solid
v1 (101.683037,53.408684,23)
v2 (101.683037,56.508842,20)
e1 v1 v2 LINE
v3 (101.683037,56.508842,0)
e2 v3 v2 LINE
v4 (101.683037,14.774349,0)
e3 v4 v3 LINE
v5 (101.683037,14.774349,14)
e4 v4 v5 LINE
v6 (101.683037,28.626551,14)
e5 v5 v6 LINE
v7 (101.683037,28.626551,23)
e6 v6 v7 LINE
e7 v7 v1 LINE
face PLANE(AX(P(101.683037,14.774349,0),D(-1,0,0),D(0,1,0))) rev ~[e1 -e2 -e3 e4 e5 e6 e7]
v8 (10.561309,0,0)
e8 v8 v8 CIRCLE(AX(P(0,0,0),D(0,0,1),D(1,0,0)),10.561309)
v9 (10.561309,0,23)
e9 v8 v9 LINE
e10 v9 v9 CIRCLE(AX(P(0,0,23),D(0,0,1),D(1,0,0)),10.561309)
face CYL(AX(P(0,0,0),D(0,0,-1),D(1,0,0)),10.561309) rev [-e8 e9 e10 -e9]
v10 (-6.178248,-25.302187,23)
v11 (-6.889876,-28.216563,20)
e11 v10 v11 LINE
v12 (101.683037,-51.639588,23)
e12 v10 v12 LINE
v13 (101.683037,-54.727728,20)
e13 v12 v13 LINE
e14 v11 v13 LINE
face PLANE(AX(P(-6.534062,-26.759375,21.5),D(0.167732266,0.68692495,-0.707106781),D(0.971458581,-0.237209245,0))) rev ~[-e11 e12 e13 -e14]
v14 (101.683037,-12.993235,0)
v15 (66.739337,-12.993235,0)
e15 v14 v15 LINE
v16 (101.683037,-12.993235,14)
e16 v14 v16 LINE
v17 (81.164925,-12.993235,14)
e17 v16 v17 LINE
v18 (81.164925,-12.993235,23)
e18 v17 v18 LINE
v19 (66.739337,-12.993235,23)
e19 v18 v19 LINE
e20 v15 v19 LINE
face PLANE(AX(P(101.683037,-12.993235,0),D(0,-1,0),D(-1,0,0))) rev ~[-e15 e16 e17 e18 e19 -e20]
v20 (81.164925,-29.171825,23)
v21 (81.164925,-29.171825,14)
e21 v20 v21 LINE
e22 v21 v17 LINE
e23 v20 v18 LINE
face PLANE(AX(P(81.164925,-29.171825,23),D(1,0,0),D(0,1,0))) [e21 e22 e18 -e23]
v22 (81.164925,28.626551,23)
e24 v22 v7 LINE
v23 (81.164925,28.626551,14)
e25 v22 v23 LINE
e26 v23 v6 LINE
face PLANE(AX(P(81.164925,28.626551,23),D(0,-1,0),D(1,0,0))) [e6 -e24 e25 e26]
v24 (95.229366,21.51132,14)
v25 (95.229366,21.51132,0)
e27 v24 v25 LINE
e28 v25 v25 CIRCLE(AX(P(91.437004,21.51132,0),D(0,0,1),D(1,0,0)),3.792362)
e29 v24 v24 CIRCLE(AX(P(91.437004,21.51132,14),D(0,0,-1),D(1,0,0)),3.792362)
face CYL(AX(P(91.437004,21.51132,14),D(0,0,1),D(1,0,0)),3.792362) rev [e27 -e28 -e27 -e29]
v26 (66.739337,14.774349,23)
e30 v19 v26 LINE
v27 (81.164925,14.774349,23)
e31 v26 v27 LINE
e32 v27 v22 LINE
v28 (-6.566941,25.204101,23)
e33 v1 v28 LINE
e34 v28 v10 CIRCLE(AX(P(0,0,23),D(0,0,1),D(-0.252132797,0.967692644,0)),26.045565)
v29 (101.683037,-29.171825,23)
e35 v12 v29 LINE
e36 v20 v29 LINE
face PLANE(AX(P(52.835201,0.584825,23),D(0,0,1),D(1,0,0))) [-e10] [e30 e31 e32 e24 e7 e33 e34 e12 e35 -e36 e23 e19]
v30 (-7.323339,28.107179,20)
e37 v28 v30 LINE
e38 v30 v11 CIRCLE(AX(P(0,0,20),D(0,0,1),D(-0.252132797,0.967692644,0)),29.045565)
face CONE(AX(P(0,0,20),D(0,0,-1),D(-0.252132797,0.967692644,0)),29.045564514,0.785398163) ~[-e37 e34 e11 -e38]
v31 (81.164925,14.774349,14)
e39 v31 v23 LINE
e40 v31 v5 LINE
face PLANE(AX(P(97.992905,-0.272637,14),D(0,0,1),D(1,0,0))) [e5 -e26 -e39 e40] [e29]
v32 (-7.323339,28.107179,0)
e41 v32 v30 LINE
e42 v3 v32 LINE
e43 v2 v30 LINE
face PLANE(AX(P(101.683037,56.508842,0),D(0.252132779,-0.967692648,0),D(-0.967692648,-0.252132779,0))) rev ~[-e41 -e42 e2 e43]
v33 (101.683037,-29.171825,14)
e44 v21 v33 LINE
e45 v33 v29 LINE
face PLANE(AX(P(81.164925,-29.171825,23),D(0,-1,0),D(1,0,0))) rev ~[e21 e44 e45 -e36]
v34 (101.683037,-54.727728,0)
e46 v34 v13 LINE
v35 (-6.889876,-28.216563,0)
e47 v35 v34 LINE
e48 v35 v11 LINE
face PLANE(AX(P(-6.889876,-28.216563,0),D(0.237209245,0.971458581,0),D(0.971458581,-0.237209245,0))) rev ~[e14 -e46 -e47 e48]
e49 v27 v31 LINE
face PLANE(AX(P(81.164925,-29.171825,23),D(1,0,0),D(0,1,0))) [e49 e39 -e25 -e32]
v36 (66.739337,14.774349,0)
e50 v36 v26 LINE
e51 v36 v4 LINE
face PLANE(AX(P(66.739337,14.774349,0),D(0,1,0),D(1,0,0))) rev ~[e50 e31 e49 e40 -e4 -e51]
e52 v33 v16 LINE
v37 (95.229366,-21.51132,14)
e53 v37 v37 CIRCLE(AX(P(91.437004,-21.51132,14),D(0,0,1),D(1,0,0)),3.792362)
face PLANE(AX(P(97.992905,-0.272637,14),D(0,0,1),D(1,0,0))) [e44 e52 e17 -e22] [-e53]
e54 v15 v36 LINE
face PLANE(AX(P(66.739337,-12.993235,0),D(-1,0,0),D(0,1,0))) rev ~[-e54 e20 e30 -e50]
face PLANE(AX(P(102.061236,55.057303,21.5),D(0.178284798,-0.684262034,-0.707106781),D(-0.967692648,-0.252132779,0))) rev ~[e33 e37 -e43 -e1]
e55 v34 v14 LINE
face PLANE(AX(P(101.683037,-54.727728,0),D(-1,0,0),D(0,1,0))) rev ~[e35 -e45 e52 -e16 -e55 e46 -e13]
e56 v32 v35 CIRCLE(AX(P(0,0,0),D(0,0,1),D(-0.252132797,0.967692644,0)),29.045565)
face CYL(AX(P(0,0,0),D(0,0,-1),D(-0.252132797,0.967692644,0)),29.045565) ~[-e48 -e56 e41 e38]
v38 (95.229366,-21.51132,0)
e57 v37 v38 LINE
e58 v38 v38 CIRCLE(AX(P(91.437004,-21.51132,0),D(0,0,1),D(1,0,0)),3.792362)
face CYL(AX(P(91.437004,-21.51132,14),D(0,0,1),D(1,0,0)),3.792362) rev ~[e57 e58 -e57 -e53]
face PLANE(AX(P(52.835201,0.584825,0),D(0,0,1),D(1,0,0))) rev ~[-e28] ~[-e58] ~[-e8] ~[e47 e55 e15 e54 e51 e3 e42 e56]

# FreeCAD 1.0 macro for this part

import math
import FreeCAD as App
import Part
import Sketcher

V = App.Vector


def edges_at(feature, points):
    """Names of the edges that pass closest to the given points."""
    edges = feature.Shape.Edges
    near = lambda p: min(range(len(edges)), key=lambda i: edges[i].distToShape(Part.Vertex(*p))[0])
    return sorted({f"Edge{near(p) + 1}" for p in points})

doc = App.newDocument("Part")
body = doc.addObject("PartDesign::Body", "Body")

# Sketch on XY plane
sketch1 = body.newObject("Sketcher::SketchObject", "Sketch")
sketch1.AttachmentSupport = (doc.getObject("XY_Plane"), [""])
sketch1.MapMode = "FlatFace"
sketch1.addGeometry([
    Part.LineSegment(V(102, 57, 0), V(-7, 28, 0)),  # 0
    Part.ArcOfCircle(Part.Circle(V(0, 0, 0), V(0, 0, 1), 29), math.radians(105), math.radians(256)),  # 1
    Part.LineSegment(V(-7, -28, 0), V(102, -55, 0)),  # 2
    Part.LineSegment(V(102, -55, 0), V(102, -13, 0)),  # 3
    Part.LineSegment(V(102, -13, 0), V(67, -13, 0)),  # 4
    Part.LineSegment(V(67, -13, 0), V(67, 15, 0)),  # 5
    Part.LineSegment(V(67, 15, 0), V(102, 15, 0)),  # 6
    Part.LineSegment(V(102, 15, 0), V(102, 57, 0)),  # 7
    Part.Circle(V(0, 0, 0), V(0, 0, 1), 11),  # 8
], False)
sketch1.addConstraint([
    Sketcher.Constraint("Tangent", 0, 2, 1, 1),
    Sketcher.Constraint("Tangent", 1, 2, 2, 1),
    Sketcher.Constraint("Coincident", 2, 2, 3, 1),
    Sketcher.Constraint("Coincident", 3, 2, 4, 1),
    Sketcher.Constraint("Coincident", 4, 2, 5, 1),
    Sketcher.Constraint("Coincident", 5, 2, 6, 1),
    Sketcher.Constraint("Coincident", 6, 2, 7, 1),
    Sketcher.Constraint("Coincident", 7, 2, 0, 1),
    Sketcher.Constraint("Vertical", 3),
    Sketcher.Constraint("Horizontal", 4),
    Sketcher.Constraint("Vertical", 5),
    Sketcher.Constraint("Horizontal", 6),
    Sketcher.Constraint("Vertical", 7),
    Sketcher.Constraint("Coincident", 1, 3, -1, 1),
    Sketcher.Constraint("Coincident", 8, 3, -1, 1),
    Sketcher.Constraint("Vertical", 3, 2, 6, 2),
    Sketcher.Constraint("Equal", 3, 7),
    Sketcher.Constraint("Diameter", 8, 21.122618),
    Sketcher.Constraint("DistanceX", 4, 2, 4, 1, 34.9437),
    Sketcher.Constraint("Radius", 1, 29.045565),
    Sketcher.Constraint("Distance", 0, 112.645659),
    Sketcher.Constraint("Distance", 2, 111.762781),
    Sketcher.Constraint("DistanceY", 3, 1, 3, 2, 41.734493),
    Sketcher.Constraint("DistanceY", 5, 1, 5, 2, 27.767584),
])
pad1 = body.newObject("PartDesign::Pad", "Pad")
pad1.Profile = sketch1
pad1.Length = 23

# Sketch on XY plane
sketch2 = body.newObject("Sketcher::SketchObject", "Sketch001")
sketch2.AttachmentSupport = (doc.getObject("XY_Plane"), [""])
sketch2.MapMode = "FlatFace"
sketch2.AttachmentOffset = App.Placement(V(0, 0, 23), App.Rotation())
sketch2.addGeometry([
    Part.LineSegment(V(81, 29, 0), V(81, -29, 0)),
    Part.LineSegment(V(81, -29, 0), V(115, -29, 0)),
    Part.LineSegment(V(115, -29, 0), V(115, 29, 0)),
    Part.LineSegment(V(115, 29, 0), V(81, 29, 0)),
], False)
sketch2.addConstraint([
    Sketcher.Constraint("Coincident", 0, 2, 1, 1),
    Sketcher.Constraint("Coincident", 1, 2, 2, 1),
    Sketcher.Constraint("Coincident", 2, 2, 3, 1),
    Sketcher.Constraint("Coincident", 3, 2, 0, 1),
    Sketcher.Constraint("Vertical", 0),
    Sketcher.Constraint("Horizontal", 1),
    Sketcher.Constraint("Vertical", 2),
    Sketcher.Constraint("Horizontal", 3),
    Sketcher.Constraint("DistanceX", 1, 1, 1, 2, 33.65596),
    Sketcher.Constraint("DistanceY", 0, 2, 0, 1, 57.798376),
    Sketcher.Constraint("DistanceY", -1, 1, 2, 2, 28.626551),
    Sketcher.Constraint("DistanceX", -1, 1, 0, 2, 81.164925),
])
pocket1 = body.newObject("PartDesign::Pocket", "Pocket")
pocket1.Profile = sketch2
pocket1.Length = 9
doc.recompute()

chamfer = body.newObject("PartDesign::Chamfer", "Chamfer")
chamfer.Base = (pocket1, edges_at(pocket1, [(47.397, -41.472, 23), (-29.045, -0.224, 23), (47.18, 42.308, 23)]))
chamfer.Size = 3

# Sketch on XY plane
sketch3 = body.newObject("Sketcher::SketchObject", "Sketch002")
sketch3.AttachmentSupport = (doc.getObject("XY_Plane"), [""])
sketch3.MapMode = "FlatFace"
sketch3.AttachmentOffset = App.Placement(V(0, 0, 14), App.Rotation())
sketch3.addGeometry(Part.Circle(V(91.4, -21.5, 0), V(0, 0, 1), 3.8), False)
sketch3.addConstraint([
    Sketcher.Constraint("Diameter", 0, 7.584724),
    Sketcher.Constraint("DistanceY", 0, 3, -1, 1, 21.51132),
    Sketcher.Constraint("DistanceX", -1, 1, 0, 3, 91.437004),
])
pocket2 = body.newObject("PartDesign::Pocket", "Pocket001")
pocket2.Profile = sketch3
pocket2.Length = 16
doc.recompute()

mirrored = body.newObject("PartDesign::Mirrored", "Mirrored")
mirrored.Originals = [pocket2]
mirrored.MirrorPlane = (doc.getObject("XZ_Plane"), [""])
body.Tip = mirrored

doc.recompute()
